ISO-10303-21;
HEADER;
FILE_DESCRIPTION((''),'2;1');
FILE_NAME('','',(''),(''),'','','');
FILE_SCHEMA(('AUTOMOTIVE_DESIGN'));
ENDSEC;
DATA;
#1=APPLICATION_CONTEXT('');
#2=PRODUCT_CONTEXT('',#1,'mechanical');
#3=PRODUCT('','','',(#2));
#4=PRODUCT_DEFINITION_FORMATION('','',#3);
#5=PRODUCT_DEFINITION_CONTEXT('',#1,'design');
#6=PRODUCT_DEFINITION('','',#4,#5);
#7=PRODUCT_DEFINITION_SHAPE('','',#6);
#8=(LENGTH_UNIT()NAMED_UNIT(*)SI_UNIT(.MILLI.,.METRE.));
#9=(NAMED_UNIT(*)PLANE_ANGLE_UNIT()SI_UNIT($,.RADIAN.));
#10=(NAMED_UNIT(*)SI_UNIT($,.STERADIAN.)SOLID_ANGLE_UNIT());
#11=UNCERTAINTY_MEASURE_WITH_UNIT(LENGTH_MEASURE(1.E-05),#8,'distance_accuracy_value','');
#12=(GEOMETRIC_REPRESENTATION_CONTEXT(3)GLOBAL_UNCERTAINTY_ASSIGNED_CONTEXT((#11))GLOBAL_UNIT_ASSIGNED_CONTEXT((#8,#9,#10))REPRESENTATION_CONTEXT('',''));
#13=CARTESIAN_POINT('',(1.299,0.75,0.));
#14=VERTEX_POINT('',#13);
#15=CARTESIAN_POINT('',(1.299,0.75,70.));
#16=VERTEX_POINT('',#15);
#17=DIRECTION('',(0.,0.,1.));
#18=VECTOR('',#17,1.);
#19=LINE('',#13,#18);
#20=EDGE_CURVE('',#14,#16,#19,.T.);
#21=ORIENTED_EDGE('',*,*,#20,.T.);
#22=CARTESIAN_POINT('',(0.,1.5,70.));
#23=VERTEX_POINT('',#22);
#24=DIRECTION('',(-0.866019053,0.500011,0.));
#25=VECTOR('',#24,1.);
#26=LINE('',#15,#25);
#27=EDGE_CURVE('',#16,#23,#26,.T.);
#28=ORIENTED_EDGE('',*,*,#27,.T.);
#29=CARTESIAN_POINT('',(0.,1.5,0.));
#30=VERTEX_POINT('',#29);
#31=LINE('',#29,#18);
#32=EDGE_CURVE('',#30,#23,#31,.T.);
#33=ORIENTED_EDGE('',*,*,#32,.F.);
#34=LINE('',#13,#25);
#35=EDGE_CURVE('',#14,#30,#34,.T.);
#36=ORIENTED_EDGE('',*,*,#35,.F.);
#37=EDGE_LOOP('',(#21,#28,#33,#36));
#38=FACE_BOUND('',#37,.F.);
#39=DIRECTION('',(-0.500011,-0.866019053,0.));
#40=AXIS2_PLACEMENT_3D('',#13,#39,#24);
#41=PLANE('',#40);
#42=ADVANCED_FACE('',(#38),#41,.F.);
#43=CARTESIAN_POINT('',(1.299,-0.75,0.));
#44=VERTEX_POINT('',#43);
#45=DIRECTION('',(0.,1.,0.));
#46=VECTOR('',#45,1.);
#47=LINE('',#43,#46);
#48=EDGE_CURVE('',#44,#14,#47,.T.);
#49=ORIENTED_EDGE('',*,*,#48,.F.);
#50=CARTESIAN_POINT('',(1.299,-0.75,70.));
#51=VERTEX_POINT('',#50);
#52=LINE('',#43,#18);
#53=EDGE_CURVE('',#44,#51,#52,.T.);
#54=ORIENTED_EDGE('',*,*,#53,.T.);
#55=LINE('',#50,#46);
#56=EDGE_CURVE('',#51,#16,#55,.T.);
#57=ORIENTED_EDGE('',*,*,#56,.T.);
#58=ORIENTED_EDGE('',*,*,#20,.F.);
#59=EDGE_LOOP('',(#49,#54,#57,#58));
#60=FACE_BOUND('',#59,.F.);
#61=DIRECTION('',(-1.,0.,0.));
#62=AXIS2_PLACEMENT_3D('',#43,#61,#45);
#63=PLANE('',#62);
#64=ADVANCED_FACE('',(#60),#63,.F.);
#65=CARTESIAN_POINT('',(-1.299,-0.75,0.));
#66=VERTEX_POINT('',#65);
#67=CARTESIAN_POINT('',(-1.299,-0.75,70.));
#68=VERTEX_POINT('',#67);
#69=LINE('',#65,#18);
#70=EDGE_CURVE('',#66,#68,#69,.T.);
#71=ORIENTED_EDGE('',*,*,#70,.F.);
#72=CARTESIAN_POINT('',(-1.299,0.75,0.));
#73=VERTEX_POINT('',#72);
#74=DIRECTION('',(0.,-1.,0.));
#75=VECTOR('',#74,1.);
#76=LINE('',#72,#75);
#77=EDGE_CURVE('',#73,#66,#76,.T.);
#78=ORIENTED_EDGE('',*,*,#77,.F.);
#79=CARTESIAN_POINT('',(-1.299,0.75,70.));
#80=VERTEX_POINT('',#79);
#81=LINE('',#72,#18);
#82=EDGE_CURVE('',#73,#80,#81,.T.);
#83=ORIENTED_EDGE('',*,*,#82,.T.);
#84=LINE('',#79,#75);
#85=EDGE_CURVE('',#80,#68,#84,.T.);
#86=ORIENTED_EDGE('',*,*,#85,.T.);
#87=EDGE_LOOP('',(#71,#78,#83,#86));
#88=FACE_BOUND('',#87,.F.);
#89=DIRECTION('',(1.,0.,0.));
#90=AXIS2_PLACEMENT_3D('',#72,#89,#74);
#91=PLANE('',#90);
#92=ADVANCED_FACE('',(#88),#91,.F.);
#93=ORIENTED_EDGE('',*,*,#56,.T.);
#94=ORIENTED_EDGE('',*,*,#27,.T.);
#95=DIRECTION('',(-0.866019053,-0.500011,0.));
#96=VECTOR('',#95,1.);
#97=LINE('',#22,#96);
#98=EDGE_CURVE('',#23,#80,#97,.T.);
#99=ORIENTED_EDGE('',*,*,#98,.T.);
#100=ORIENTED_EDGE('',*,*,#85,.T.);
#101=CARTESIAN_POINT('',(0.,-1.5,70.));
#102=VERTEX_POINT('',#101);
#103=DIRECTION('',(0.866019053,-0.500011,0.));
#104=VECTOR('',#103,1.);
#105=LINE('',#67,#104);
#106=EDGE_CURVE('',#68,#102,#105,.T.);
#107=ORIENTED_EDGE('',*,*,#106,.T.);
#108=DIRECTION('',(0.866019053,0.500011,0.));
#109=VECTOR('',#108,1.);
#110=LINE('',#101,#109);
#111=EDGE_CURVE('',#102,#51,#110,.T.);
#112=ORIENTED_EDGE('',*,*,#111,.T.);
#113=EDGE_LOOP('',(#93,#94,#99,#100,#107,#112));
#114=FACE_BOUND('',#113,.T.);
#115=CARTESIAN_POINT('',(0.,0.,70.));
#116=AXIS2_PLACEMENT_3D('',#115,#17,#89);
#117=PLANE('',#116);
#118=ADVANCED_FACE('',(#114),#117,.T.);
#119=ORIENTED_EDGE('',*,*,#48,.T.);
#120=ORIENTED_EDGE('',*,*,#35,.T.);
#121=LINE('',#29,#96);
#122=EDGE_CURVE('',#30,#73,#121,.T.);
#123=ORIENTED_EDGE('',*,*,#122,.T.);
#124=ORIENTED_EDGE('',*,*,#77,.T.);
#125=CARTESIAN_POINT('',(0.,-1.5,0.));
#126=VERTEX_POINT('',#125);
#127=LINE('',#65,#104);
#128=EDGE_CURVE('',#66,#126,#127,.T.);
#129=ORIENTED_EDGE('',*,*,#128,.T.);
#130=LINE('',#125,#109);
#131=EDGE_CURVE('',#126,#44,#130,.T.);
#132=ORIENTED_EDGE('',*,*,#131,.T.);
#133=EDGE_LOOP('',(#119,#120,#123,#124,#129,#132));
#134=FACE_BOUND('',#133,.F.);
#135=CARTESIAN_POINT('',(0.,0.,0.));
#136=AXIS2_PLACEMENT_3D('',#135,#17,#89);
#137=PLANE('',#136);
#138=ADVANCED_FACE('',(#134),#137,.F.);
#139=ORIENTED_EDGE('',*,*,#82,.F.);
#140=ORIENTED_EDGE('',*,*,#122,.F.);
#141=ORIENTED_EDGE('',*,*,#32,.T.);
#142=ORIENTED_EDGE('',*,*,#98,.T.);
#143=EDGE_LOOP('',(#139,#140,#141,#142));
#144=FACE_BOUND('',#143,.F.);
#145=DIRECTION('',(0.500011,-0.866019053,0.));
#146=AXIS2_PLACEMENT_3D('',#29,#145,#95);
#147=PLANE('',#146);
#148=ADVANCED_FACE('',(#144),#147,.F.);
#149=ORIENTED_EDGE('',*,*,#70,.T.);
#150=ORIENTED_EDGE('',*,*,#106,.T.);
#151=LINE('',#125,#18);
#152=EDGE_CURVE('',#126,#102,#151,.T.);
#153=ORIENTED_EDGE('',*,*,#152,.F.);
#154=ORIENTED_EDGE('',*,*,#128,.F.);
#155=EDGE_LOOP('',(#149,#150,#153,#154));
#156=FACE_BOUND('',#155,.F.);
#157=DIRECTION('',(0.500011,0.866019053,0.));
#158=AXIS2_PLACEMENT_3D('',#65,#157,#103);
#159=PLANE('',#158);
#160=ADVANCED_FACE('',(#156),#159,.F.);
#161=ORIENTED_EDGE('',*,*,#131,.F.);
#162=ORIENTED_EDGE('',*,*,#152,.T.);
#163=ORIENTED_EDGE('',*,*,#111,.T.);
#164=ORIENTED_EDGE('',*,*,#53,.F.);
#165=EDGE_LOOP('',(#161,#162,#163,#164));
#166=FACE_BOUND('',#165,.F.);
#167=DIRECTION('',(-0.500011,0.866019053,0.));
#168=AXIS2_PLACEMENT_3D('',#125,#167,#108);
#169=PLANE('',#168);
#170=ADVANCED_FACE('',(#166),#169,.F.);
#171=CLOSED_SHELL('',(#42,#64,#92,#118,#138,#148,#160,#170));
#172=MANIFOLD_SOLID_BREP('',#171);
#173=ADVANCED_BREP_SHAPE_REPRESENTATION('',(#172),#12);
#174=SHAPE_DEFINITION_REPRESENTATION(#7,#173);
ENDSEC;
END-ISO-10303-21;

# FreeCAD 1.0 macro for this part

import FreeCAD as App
import Part
import Sketcher
from FreeCAD import Vector
Q = App.Units.Quantity


def add_polygon(sketch, points):
    """Adds a closed chain of lines whose ends are joined by coincident constraints."""
    first, n = sketch.GeometryCount, len(points)
    for a, b in zip(points, points[1:] + points[:1]):
        sketch.addGeometry(Part.LineSegment(App.Vector(*a, 0), App.Vector(*b, 0)), False)
    for i in range(n):
        sketch.addConstraint(Sketcher.Constraint("Coincident", first + i, 2, first + (i + 1) % n, 1))

doc = App.newDocument("Part")
params = doc.addObject("Spreadsheet::Sheet", "Params")
for row, (alias, value) in enumerate([
    ("sketch1_height", "1.5 mm"),
    ("sketch1_length", "1.5 mm"),
    ("pad1_length", "70 mm"),
], start=1):
    params.set(f"A{row}", alias)
    params.set(f"B{row}", "=" + value)
    params.setAlias(f"B{row}", alias)

body = doc.addObject("PartDesign::Body", "Body")

sketch1 = body.newObject("Sketcher::SketchObject", "Sketch")
sketch1.AttachmentSupport = (doc.getObject("XY_Plane"), [""])
sketch1.MapMode = "FlatFace"
add_polygon(sketch1, [(0, -1.5), (1.3, -0.8), (1.3, 0.8), (0, 1.5), (-1.3, 0.8), (-1.3, -0.8)])
sketch1.addConstraint(Sketcher.Constraint("Vertical", 1))
sketch1.addConstraint(Sketcher.Constraint("Vertical", 4))
sketch1.addConstraint(Sketcher.Constraint("Symmetric", 0, 2, 3, 2, -1, 1))
sketch1.addConstraint(Sketcher.Constraint("Symmetric", 2, 2, 5, 2, -1, 1))
sketch1.addConstraint(Sketcher.Constraint("PointOnObject", 2, 2, -2))
sketch1.addConstraint(Sketcher.Constraint("Parallel", 2, 5))
sketch1.addConstraint(Sketcher.Constraint("Horizontal", 1, 2, 3, 2))
sketch1.addConstraint(Sketcher.Constraint("DistanceY", 1, 1, 1, 2, Q("1.5 mm")))
sketch1.addConstraint(Sketcher.Constraint("Distance", 0, Q("1.5 mm")))
sketch1.addConstraint(Sketcher.Constraint("DistanceY", -1, 1, 2, 2, Q("1.5 mm")))
sketch1.setExpression("Constraints[13]", "Params.sketch1_height")
sketch1.setExpression("Constraints[14]", "Params.sketch1_length")
pad1 = body.newObject("PartDesign::Pad", "Pad")
pad1.Profile = sketch1
pad1.setExpression("Length", "Params.pad1_length")

doc.recompute()
